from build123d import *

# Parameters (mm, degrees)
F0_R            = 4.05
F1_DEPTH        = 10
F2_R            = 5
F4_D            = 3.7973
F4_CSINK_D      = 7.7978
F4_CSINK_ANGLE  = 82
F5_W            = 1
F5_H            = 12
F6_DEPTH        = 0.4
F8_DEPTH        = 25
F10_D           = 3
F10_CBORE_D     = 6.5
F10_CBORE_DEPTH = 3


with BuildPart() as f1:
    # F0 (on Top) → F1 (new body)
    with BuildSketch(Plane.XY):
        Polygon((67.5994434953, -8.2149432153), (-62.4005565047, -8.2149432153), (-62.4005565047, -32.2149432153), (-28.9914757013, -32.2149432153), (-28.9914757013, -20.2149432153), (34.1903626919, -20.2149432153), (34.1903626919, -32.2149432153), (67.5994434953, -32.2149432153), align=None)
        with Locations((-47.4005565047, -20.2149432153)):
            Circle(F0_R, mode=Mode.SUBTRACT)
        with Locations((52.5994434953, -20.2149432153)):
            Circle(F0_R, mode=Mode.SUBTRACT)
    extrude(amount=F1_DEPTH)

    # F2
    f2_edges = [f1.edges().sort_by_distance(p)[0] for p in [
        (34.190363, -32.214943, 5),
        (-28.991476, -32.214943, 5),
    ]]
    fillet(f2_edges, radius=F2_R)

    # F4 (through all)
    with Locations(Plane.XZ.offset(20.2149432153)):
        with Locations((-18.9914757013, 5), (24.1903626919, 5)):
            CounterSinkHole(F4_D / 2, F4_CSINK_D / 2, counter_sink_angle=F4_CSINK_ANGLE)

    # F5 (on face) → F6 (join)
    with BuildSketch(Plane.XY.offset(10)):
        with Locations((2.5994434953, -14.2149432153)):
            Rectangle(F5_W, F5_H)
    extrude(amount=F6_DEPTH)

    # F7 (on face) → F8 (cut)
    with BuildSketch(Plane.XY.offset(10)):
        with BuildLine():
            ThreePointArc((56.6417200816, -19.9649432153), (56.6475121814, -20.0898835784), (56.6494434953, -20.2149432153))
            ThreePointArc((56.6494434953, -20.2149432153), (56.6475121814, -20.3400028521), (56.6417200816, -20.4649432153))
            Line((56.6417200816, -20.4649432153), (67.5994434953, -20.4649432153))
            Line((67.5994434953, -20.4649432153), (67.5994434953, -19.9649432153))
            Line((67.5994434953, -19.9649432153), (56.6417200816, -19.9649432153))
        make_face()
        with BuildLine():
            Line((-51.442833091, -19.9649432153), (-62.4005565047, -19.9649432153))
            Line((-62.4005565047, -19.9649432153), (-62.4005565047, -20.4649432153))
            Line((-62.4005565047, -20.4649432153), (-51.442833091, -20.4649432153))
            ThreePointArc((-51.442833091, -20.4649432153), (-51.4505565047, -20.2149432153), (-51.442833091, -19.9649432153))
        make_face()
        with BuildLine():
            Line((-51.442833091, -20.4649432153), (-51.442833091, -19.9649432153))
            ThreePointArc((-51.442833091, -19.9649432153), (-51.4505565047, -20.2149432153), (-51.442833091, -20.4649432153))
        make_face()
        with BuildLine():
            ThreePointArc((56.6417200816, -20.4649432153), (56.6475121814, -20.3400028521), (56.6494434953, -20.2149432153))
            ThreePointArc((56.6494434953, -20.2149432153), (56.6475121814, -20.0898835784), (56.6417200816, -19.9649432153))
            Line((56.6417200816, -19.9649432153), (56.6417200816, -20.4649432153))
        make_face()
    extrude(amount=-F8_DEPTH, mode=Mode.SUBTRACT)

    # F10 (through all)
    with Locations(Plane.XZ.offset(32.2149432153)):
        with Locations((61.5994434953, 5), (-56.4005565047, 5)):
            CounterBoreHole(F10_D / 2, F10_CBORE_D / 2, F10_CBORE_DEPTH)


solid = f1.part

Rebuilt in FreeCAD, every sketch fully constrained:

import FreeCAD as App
import Part
import Sketcher
from FreeCAD import Vector


def edges_at(feature, points):
    """Names of the edges that pass closest to the given points."""
    edges = feature.Shape.Edges
    near = lambda p: min(range(len(edges)), key=lambda i: edges[i].distToShape(Part.Vertex(*p))[0])
    return sorted({f"Edge{near(p) + 1}" for p in points})

doc = App.newDocument("Part")
body = doc.addObject("PartDesign::Body", "Body")

sketch1 = body.newObject("Sketcher::SketchObject", "Sketch")
sketch1.AttachmentSupport = (doc.getObject("XY_Plane"), [""])
sketch1.MapMode = "FlatFace"
sketch1.addGeometry(Part.LineSegment(Vector(67.599443, -8.214943, 0), Vector(-62.400557, -8.214943, 0)), False)
sketch1.addGeometry(Part.LineSegment(Vector(-62.400557, -8.214943, 0), Vector(-62.400557, -32.214943, 0)), False)
sketch1.addGeometry(Part.LineSegment(Vector(-62.400557, -32.214943, 0), Vector(-28.991476, -32.214943, 0)), False)
sketch1.addGeometry(Part.LineSegment(Vector(-28.991476, -32.214943, 0), Vector(-28.991476, -20.214943, 0)), False)
sketch1.addGeometry(Part.LineSegment(Vector(-28.991476, -20.214943, 0), Vector(34.190363, -20.214943, 0)), False)
sketch1.addGeometry(Part.LineSegment(Vector(34.190363, -20.214943, 0), Vector(34.190363, -32.214943, 0)), False)
sketch1.addGeometry(Part.LineSegment(Vector(34.190363, -32.214943, 0), Vector(67.599443, -32.214943, 0)), False)
sketch1.addGeometry(Part.LineSegment(Vector(67.599443, -32.214943, 0), Vector(67.599443, -8.214943, 0)), False)
sketch1.addGeometry(Part.Circle(Vector(-47.400557, -20.214943, 0), Vector(0, 0, 1), 4.05), False)
sketch1.addGeometry(Part.Circle(Vector(52.599443, -20.214943, 0), Vector(0, 0, 1), 4.05), False)
sketch1.addConstraint(Sketcher.Constraint("Coincident", 0, 2, 1, 1))
sketch1.addConstraint(Sketcher.Constraint("Coincident", 1, 2, 2, 1))
sketch1.addConstraint(Sketcher.Constraint("Coincident", 2, 2, 3, 1))
sketch1.addConstraint(Sketcher.Constraint("Coincident", 3, 2, 4, 1))
sketch1.addConstraint(Sketcher.Constraint("Coincident", 4, 2, 5, 1))
sketch1.addConstraint(Sketcher.Constraint("Coincident", 5, 2, 6, 1))
sketch1.addConstraint(Sketcher.Constraint("Coincident", 6, 2, 7, 1))
sketch1.addConstraint(Sketcher.Constraint("Coincident", 7, 2, 0, 1))
sketch1.addConstraint(Sketcher.Constraint("Horizontal", 0))
sketch1.addConstraint(Sketcher.Constraint("Vertical", 1))
sketch1.addConstraint(Sketcher.Constraint("Horizontal", 2))
sketch1.addConstraint(Sketcher.Constraint("Vertical", 3))
sketch1.addConstraint(Sketcher.Constraint("Horizontal", 4))
sketch1.addConstraint(Sketcher.Constraint("Vertical", 5))
sketch1.addConstraint(Sketcher.Constraint("Horizontal", 6))
sketch1.addConstraint(Sketcher.Constraint("Vertical", 7))
sketch1.addConstraint(Sketcher.Constraint("Equal", 8, 9))
sketch1.addConstraint(Sketcher.Constraint("Horizontal", 8, 3, 9, 3))
sketch1.addConstraint(Sketcher.Constraint("Horizontal", 9, 3, 3, 2))
sketch1.addConstraint(Sketcher.Constraint("Horizontal", 2, 2, 5, 2))
sketch1.addConstraint(Sketcher.Constraint("Equal", 2, 6))
sketch1.addConstraint(Sketcher.Constraint("Diameter", 8, 8.1))
sketch1.addConstraint(Sketcher.Constraint("DistanceX", 0, 2, 0, 1, 130.0))
sketch1.addConstraint(Sketcher.Constraint("DistanceY", 1, 2, 1, 1, 24.0))
sketch1.addConstraint(Sketcher.Constraint("DistanceY", 3, 1, 3, 2, 12.0))
sketch1.addConstraint(Sketcher.Constraint("DistanceX", 8, 3, 9, 3, 100.0))
sketch1.addConstraint(Sketcher.Constraint("DistanceX", 0, 2, 8, 3, 15.0))
sketch1.addConstraint(Sketcher.Constraint("DistanceX", 2, 1, 2, 2, 33.409081))
sketch1.addConstraint(Sketcher.Constraint("DistanceX", 8, 3, -1, 1, 47.400557))
sketch1.addConstraint(Sketcher.Constraint("DistanceY", 8, 3, -1, 1, 20.214943))
pad1 = body.newObject("PartDesign::Pad", "Pad")
pad1.Profile = sketch1
pad1.Length = 10
doc.recompute()

fillet = body.newObject("PartDesign::Fillet", "Fillet")
fillet.Base = (pad1, edges_at(pad1, [(34.19, -32.215, 5), (-28.991, -32.215, 5)]))
fillet.Radius = 5

sketch2 = body.newObject("Sketcher::SketchObject", "Sketch001")
sketch2.AttachmentSupport = (doc.getObject("XZ_Plane"), [""])
sketch2.MapMode = "FlatFace"
sketch2.AttachmentOffset = App.Placement(Vector(0, 0, 20.214943), App.Rotation())
sketch2.addGeometry(Part.Circle(Vector(-18.991476, 5, 0), Vector(0, 0, 1), 1.89865), False)
sketch2.addGeometry(Part.Circle(Vector(24.190363, 5, 0), Vector(0, 0, 1), 1.89865), False)
sketch2.addConstraint(Sketcher.Constraint("Equal", 0, 1))
sketch2.addConstraint(Sketcher.Constraint("Horizontal", 0, 3, 1, 3))
sketch2.addConstraint(Sketcher.Constraint("DistanceY", -1, 1, 0, 3, 5.0))
sketch2.addConstraint(Sketcher.Constraint("Diameter", 0, 3.7973))
sketch2.addConstraint(Sketcher.Constraint("DistanceX", 0, 3, 1, 3, 43.181838))
sketch2.addConstraint(Sketcher.Constraint("DistanceX", 0, 3, -1, 1, 18.991476))
doc.recompute()
hole = body.newObject("PartDesign::Hole", "Hole")
hole.Profile = sketch2
hole.ThreadType = "None"
hole.Diameter = 3.7973
hole.DepthType = "ThroughAll"
hole.HoleCutType = "Countersink"
hole.HoleCutDiameter = 7.7978
hole.HoleCutCountersinkAngle = 82

sketch3 = body.newObject("Sketcher::SketchObject", "Sketch002")
sketch3.AttachmentSupport = (doc.getObject("XY_Plane"), [""])
sketch3.MapMode = "FlatFace"
sketch3.AttachmentOffset = App.Placement(Vector(0, 0, 10), App.Rotation())
sketch3.addGeometry(Part.LineSegment(Vector(2.099443, -8.214943, 0), Vector(2.099443, -20.214943, 0)), False)
sketch3.addGeometry(Part.LineSegment(Vector(2.099443, -20.214943, 0), Vector(3.099443, -20.214943, 0)), False)
sketch3.addGeometry(Part.LineSegment(Vector(3.099443, -20.214943, 0), Vector(3.099443, -8.214943, 0)), False)
sketch3.addGeometry(Part.LineSegment(Vector(3.099443, -8.214943, 0), Vector(2.099443, -8.214943, 0)), False)
sketch3.addConstraint(Sketcher.Constraint("Coincident", 0, 2, 1, 1))
sketch3.addConstraint(Sketcher.Constraint("Coincident", 1, 2, 2, 1))
sketch3.addConstraint(Sketcher.Constraint("Coincident", 2, 2, 3, 1))
sketch3.addConstraint(Sketcher.Constraint("Coincident", 3, 2, 0, 1))
sketch3.addConstraint(Sketcher.Constraint("Vertical", 0))
sketch3.addConstraint(Sketcher.Constraint("Horizontal", 1))
sketch3.addConstraint(Sketcher.Constraint("Vertical", 2))
sketch3.addConstraint(Sketcher.Constraint("Horizontal", 3))
sketch3.addConstraint(Sketcher.Constraint("DistanceX", 1, 1, 1, 2, 1.0))
sketch3.addConstraint(Sketcher.Constraint("DistanceY", 0, 2, 0, 1, 12.0))
sketch3.addConstraint(Sketcher.Constraint("DistanceX", -1, 1, 0, 2, 2.099443))
sketch3.addConstraint(Sketcher.Constraint("DistanceY", 0, 2, -1, 1, 20.214943))
pad2 = body.newObject("PartDesign::Pad", "Pad001")
pad2.Profile = sketch3
pad2.Length = 0.4

sketch4 = body.newObject("Sketcher::SketchObject", "Sketch003")
sketch4.AttachmentSupport = (doc.getObject("XY_Plane"), [""])
sketch4.MapMode = "FlatFace"
sketch4.AttachmentOffset = App.Placement(Vector(0, 0, 10), App.Rotation())
sketch4.addGeometry(Part.LineSegment(Vector(56.64172, -20.464943, 0), Vector(67.599443, -20.464943, 0)), False)
sketch4.addGeometry(Part.LineSegment(Vector(67.599443, -20.464943, 0), Vector(67.599443, -19.964943, 0)), False)
sketch4.addGeometry(Part.LineSegment(Vector(67.599443, -19.964943, 0), Vector(56.64172, -19.964943, 0)), False)
sketch4.addGeometry(Part.LineSegment(Vector(56.64172, -19.964943, 0), Vector(56.64172, -20.464943, 0)), False)
sketch4.addGeometry(Part.LineSegment(Vector(-51.442833, -19.964943, 0), Vector(-62.400557, -19.964943, 0)), False)
sketch4.addGeometry(Part.LineSegment(Vector(-62.400557, -19.964943, 0), Vector(-62.400557, -20.464943, 0)), False)
sketch4.addGeometry(Part.LineSegment(Vector(-62.400557, -20.464943, 0), Vector(-51.442833, -20.464943, 0)), False)
sketch4.addGeometry(Part.LineSegment(Vector(-51.442833, -20.464943, 0), Vector(-51.442833, -19.964943, 0)), False)
sketch4.addConstraint(Sketcher.Constraint("Coincident", 0, 2, 1, 1))
sketch4.addConstraint(Sketcher.Constraint("Coincident", 1, 2, 2, 1))
sketch4.addConstraint(Sketcher.Constraint("Coincident", 2, 2, 3, 1))
sketch4.addConstraint(Sketcher.Constraint("Coincident", 3, 2, 0, 1))
sketch4.addConstraint(Sketcher.Constraint("Coincident", 4, 2, 5, 1))
sketch4.addConstraint(Sketcher.Constraint("Coincident", 5, 2, 6, 1))
sketch4.addConstraint(Sketcher.Constraint("Coincident", 6, 2, 7, 1))
sketch4.addConstraint(Sketcher.Constraint("Coincident", 7, 2, 4, 1))
sketch4.addConstraint(Sketcher.Constraint("Horizontal", 0))
sketch4.addConstraint(Sketcher.Constraint("Vertical", 1))
sketch4.addConstraint(Sketcher.Constraint("Horizontal", 2))
sketch4.addConstraint(Sketcher.Constraint("Vertical", 3))
sketch4.addConstraint(Sketcher.Constraint("Horizontal", 4))
sketch4.addConstraint(Sketcher.Constraint("Vertical", 5))
sketch4.addConstraint(Sketcher.Constraint("Horizontal", 6))
sketch4.addConstraint(Sketcher.Constraint("Vertical", 7))
sketch4.addConstraint(Sketcher.Constraint("Horizontal", 2, 2, 4, 2))
sketch4.addConstraint(Sketcher.Constraint("Horizontal", 3, 2, 5, 2))
sketch4.addConstraint(Sketcher.Constraint("Equal", 2, 4))
sketch4.addConstraint(Sketcher.Constraint("DistanceY", 1, 1, 1, 2, 0.5))
sketch4.addConstraint(Sketcher.Constraint("DistanceX", 4, 2, 1, 2, 130.0))
sketch4.addConstraint(Sketcher.Constraint("DistanceX", 0, 1, 0, 2, 10.957723))
sketch4.addConstraint(Sketcher.Constraint("DistanceX", -1, 1, 2, 2, 56.64172))
sketch4.addConstraint(Sketcher.Constraint("DistanceY", 0, 2, -1, 1, 20.464943))
pocket1 = body.newObject("PartDesign::Pocket", "Pocket")
pocket1.Profile = sketch4
pocket1.Length = 25

sketch5 = body.newObject("Sketcher::SketchObject", "Sketch004")
sketch5.AttachmentSupport = (doc.getObject("XZ_Plane"), [""])
sketch5.MapMode = "FlatFace"
sketch5.AttachmentOffset = App.Placement(Vector(0, 0, 32.214943), App.Rotation())
sketch5.addGeometry(Part.Circle(Vector(61.599443, 5, 0), Vector(0, 0, 1), 1.5), False)
sketch5.addGeometry(Part.Circle(Vector(-56.400557, 5, 0), Vector(0, 0, 1), 1.5), False)
sketch5.addConstraint(Sketcher.Constraint("Equal", 0, 1))
sketch5.addConstraint(Sketcher.Constraint("Horizontal", 0, 3, 1, 3))
sketch5.addConstraint(Sketcher.Constraint("Diameter", 0, 3.0))
sketch5.addConstraint(Sketcher.Constraint("DistanceY", -1, 1, 0, 3, 5.0))
sketch5.addConstraint(Sketcher.Constraint("DistanceX", 1, 3, 0, 3, 118.0))
sketch5.addConstraint(Sketcher.Constraint("DistanceX", -1, 1, 0, 3, 61.599443))
doc.recompute()
hole2 = body.newObject("PartDesign::Hole", "Hole001")
hole2.Profile = sketch5
hole2.ThreadType = "None"
hole2.Diameter = 3
hole2.DepthType = "ThroughAll"
hole2.HoleCutType = "Counterbore"
hole2.HoleCutDiameter = 6.5
hole2.HoleCutDepth = 3

doc.recompute()
